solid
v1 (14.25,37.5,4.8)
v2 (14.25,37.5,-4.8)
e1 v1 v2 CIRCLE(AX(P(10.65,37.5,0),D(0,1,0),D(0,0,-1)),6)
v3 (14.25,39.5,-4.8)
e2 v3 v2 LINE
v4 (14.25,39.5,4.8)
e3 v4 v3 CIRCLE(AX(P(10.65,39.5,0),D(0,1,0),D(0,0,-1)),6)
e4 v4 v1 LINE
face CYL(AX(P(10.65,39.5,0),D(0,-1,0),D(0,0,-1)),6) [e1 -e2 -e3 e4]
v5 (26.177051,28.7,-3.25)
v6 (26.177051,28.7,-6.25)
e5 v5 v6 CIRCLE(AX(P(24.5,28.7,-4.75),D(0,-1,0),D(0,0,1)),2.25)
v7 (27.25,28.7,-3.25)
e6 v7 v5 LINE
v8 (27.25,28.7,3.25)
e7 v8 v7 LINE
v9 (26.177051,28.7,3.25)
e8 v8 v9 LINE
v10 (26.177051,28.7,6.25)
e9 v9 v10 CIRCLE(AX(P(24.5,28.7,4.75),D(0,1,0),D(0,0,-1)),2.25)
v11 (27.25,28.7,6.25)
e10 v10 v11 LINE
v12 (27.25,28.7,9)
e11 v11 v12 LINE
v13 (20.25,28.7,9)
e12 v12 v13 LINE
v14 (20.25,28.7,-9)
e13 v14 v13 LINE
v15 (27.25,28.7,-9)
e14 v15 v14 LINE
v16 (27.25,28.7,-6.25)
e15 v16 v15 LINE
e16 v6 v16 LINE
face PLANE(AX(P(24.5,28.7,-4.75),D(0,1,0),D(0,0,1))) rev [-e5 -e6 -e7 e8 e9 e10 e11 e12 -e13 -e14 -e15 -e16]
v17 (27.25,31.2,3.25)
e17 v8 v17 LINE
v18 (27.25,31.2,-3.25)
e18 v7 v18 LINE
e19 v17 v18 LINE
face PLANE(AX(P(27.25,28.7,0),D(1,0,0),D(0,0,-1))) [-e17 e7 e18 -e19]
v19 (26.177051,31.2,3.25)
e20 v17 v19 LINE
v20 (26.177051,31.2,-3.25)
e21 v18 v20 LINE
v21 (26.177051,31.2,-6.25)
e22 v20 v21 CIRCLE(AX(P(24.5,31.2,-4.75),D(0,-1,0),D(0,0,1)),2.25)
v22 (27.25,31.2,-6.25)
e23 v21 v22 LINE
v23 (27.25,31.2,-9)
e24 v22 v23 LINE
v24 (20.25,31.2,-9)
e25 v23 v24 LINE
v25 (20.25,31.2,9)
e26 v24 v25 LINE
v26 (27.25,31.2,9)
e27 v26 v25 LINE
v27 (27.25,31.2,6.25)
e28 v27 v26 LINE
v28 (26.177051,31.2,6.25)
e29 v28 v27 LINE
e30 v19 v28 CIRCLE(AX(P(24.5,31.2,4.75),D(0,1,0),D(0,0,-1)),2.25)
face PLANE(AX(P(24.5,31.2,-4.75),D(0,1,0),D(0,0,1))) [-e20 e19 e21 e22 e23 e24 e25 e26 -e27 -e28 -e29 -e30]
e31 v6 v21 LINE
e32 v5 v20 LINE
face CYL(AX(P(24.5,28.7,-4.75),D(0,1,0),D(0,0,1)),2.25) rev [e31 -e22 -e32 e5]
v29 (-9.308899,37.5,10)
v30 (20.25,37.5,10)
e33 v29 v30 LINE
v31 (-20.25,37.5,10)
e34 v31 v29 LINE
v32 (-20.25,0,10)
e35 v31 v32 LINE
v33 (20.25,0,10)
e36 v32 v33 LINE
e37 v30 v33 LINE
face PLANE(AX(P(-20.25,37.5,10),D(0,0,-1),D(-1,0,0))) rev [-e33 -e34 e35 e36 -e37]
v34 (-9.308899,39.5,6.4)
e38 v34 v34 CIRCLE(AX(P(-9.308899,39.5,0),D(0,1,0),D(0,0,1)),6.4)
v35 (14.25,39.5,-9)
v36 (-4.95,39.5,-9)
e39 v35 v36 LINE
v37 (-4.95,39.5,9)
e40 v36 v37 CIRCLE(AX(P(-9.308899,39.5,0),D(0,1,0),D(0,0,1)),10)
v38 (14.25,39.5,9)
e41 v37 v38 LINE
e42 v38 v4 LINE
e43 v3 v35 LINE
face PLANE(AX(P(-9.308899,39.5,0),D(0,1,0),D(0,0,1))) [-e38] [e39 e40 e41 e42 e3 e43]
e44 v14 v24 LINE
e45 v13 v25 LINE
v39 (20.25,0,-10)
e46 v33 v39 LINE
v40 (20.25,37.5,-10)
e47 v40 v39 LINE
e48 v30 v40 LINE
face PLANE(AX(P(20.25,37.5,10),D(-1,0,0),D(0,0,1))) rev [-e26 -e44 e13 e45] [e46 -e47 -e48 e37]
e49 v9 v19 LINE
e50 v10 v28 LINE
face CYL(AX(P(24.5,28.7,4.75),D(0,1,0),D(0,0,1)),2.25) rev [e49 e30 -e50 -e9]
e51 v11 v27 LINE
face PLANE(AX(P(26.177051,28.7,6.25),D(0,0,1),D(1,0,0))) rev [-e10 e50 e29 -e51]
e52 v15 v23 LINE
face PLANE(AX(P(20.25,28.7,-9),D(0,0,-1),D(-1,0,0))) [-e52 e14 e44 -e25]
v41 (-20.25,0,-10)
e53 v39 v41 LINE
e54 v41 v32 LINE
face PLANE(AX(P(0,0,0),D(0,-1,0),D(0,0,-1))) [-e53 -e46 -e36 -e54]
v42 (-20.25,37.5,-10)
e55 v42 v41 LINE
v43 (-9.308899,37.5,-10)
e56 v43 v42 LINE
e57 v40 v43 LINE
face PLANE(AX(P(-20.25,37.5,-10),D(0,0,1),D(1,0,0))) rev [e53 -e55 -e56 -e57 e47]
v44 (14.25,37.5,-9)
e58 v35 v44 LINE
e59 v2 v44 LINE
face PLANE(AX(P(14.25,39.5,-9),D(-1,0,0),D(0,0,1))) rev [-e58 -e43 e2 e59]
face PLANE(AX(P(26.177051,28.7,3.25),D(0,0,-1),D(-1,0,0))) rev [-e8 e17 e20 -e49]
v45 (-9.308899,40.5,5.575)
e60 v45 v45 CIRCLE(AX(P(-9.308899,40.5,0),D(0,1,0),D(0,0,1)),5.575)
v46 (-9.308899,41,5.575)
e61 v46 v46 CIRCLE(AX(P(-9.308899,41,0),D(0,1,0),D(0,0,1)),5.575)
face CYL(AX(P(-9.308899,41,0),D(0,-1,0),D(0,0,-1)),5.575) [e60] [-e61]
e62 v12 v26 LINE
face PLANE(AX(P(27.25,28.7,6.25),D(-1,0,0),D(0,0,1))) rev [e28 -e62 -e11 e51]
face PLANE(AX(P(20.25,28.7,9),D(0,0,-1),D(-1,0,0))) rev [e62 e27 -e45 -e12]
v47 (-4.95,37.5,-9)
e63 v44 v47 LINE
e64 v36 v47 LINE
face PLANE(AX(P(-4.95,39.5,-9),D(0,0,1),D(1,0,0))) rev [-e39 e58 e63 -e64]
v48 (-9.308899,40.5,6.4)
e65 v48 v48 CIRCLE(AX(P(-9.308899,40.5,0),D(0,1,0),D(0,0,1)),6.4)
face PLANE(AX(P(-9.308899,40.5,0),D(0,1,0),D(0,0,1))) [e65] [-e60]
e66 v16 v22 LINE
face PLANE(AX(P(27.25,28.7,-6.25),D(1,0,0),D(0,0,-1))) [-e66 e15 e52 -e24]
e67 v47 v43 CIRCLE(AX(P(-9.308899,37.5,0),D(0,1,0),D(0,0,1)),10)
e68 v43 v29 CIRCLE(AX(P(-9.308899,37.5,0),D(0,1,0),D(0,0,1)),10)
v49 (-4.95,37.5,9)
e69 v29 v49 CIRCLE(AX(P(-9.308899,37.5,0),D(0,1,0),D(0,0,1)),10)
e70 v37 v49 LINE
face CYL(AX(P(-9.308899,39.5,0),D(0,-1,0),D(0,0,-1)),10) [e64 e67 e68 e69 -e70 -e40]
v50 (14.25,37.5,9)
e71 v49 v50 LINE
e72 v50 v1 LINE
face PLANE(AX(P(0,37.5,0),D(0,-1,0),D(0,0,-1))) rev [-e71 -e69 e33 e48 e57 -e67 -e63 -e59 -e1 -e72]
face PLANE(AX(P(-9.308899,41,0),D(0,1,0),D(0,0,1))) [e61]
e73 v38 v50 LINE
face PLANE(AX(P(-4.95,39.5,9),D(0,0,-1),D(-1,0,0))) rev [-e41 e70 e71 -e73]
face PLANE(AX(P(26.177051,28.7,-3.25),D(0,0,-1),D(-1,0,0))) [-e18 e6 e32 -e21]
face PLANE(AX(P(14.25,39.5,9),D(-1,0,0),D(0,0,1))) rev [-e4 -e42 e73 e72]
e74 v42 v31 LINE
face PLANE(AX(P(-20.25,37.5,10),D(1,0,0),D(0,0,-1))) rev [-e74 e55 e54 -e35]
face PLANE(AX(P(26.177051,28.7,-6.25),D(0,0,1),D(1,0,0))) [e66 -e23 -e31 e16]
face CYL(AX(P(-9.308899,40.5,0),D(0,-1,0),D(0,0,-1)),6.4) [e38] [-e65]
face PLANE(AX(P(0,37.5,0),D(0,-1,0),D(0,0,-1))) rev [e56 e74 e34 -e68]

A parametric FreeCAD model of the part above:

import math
import FreeCAD as App
import Part
import Sketcher
from FreeCAD import Vector
Q = App.Units.Quantity


def add_polygon(sketch, points):
    """Adds a closed chain of lines whose ends are joined by coincident constraints."""
    first, n = sketch.GeometryCount, len(points)
    for a, b in zip(points, points[1:] + points[:1]):
        sketch.addGeometry(Part.LineSegment(App.Vector(*a, 0), App.Vector(*b, 0)), False)
    for i in range(n):
        sketch.addConstraint(Sketcher.Constraint("Coincident", first + i, 2, first + (i + 1) % n, 1))

doc = App.newDocument("Part")
body = doc.addObject("PartDesign::Body", "Body")

# Sketch on XZ plane
sketch1 = doc.addObject("Sketcher::SketchObject", "Sketch")
body.addObject(sketch1)
sketch1.AttachmentSupport = (doc.XZ_Plane, [""])
sketch1.MapMode = "FlatFace"
add_polygon(sketch1, [(-20, -10), (-20, 10), (20, 10), (20, -10)])  # lines 0-3
sketch1.addConstraint(Sketcher.Constraint("Vertical", 0))
sketch1.addConstraint(Sketcher.Constraint("Horizontal", 1))
sketch1.addConstraint(Sketcher.Constraint("Vertical", 2))
sketch1.addConstraint(Sketcher.Constraint("Horizontal", 3))
sketch1.addConstraint(Sketcher.Constraint("Symmetric", 0, 2, 2, 2, -1, 1))
sketch1.addConstraint(Sketcher.Constraint("DistanceY", 0, 1, 0, 2, Q("20 mm")))
sketch1.addConstraint(Sketcher.Constraint("DistanceX", 1, 1, 1, 2, Q("40.5 mm")))
pad1 = doc.addObject("PartDesign::Pad", "Pad")
body.addObject(pad1)
pad1.Profile = sketch1
pad1.Length = 37.5
pad1.Reversed = True

# Sketch on XZ plane
sketch2 = doc.addObject("Sketcher::SketchObject", "Sketch001")
body.addObject(sketch2)
sketch2.AttachmentSupport = (doc.XZ_Plane, [""])
sketch2.MapMode = "FlatFace"
sketch2.AttachmentOffset = App.Placement(Vector(0, 0, -37.5), App.Rotation())
sketch2.addGeometry(Part.LineSegment(Vector(-5, 9, 0), Vector(14.2, 9, 0)), False)
sketch2.addGeometry(Part.LineSegment(Vector(14.2, 9, 0), Vector(14.2, 4.8, 0)), False)
sketch2.addGeometry(Part.ArcOfCircle(Part.Circle(Vector(10.7, 0, 0), Vector(0, 0, 1), 6), math.radians(-53), math.radians(53)), False)
sketch2.addGeometry(Part.LineSegment(Vector(14.2, -4.8, 0), Vector(14.2, -9, 0)), False)
sketch2.addGeometry(Part.LineSegment(Vector(14.2, -9, 0), Vector(-5, -9, 0)), False)
sketch2.addGeometry(Part.ArcOfCircle(Part.Circle(Vector(-9.3, 0, 0), Vector(0, 0, 1), 10), math.radians(64), math.radians(296)), False)
sketch2.addConstraint(Sketcher.Constraint("Coincident", 0, 2, 1, 1))
sketch2.addConstraint(Sketcher.Constraint("Coincident", 1, 2, 2, 2))
sketch2.addConstraint(Sketcher.Constraint("Coincident", 2, 1, 3, 1))
sketch2.addConstraint(Sketcher.Constraint("Coincident", 3, 2, 4, 1))
sketch2.addConstraint(Sketcher.Constraint("Coincident", 4, 2, 5, 2))
sketch2.addConstraint(Sketcher.Constraint("Coincident", 5, 1, 0, 1))
sketch2.addConstraint(Sketcher.Constraint("Horizontal", 0))
sketch2.addConstraint(Sketcher.Constraint("Vertical", 1))
sketch2.addConstraint(Sketcher.Constraint("Vertical", 3))
sketch2.addConstraint(Sketcher.Constraint("Horizontal", 4))
sketch2.addConstraint(Sketcher.Constraint("Symmetric", 1, 2, 2, 1, -1))
sketch2.addConstraint(Sketcher.Constraint("Symmetric", 4, 2, 5, 1, -1))
sketch2.addConstraint(Sketcher.Constraint("Radius", 2, Q("6 mm")))
sketch2.addConstraint(Sketcher.Constraint("Radius", 5, Q("10 mm")))
sketch2.addConstraint(Sketcher.Constraint("DistanceX", 0, 1, 0, 2, Q("19.2 mm")))
sketch2.addConstraint(Sketcher.Constraint("DistanceY", 1, 2, 1, 1, Q("4.2 mm")))
sketch2.addConstraint(Sketcher.Constraint("DistanceY", -1, 1, 0, 2, Q("9 mm")))
sketch2.addConstraint(Sketcher.Constraint("DistanceX", -1, 1, 2, 3, Q("10.65 mm")))
pad2 = doc.addObject("PartDesign::Pad", "Pad001")
body.addObject(pad2)
pad2.Profile = sketch2
pad2.Length = 2
pad2.Reversed = True

# Sketch on XZ plane
sketch3 = doc.addObject("Sketcher::SketchObject", "Sketch002")
body.addObject(sketch3)
sketch3.AttachmentSupport = (doc.XZ_Plane, [""])
sketch3.MapMode = "FlatFace"
sketch3.AttachmentOffset = App.Placement(Vector(0, 0, -39.5), App.Rotation())
sketch3.addGeometry(Part.Circle(Vector(-9, 0, 0), Vector(0, 0, 1), 6), False)
sketch3.addConstraint(Sketcher.Constraint("PointOnObject", 0, 3, -1))
sketch3.addConstraint(Sketcher.Constraint("Diameter", 0, Q("12.8 mm")))
sketch3.addConstraint(Sketcher.Constraint("DistanceX", 0, 3, -1, 1, Q("9.308899 mm")))
pad3 = doc.addObject("PartDesign::Pad", "Pad002")
body.addObject(pad3)
pad3.Profile = sketch3
pad3.Length = 1
pad3.Reversed = True

# Sketch on XZ plane
sketch4 = doc.addObject("Sketcher::SketchObject", "Sketch003")
body.addObject(sketch4)
sketch4.AttachmentSupport = (doc.XZ_Plane, [""])
sketch4.MapMode = "FlatFace"
sketch4.AttachmentOffset = App.Placement(Vector(0, 0, -40.5), App.Rotation())
sketch4.addGeometry(Part.Circle(Vector(-9, 0, 0), Vector(0, 0, 1), 6), False)
sketch4.addConstraint(Sketcher.Constraint("PointOnObject", 0, 3, -1))
sketch4.addConstraint(Sketcher.Constraint("Diameter", 0, Q("11.15 mm")))
sketch4.addConstraint(Sketcher.Constraint("DistanceX", 0, 3, -1, 1, Q("9.308899 mm")))
pad4 = doc.addObject("PartDesign::Pad", "Pad003")
body.addObject(pad4)
pad4.Profile = sketch4
pad4.Length = 0.5
pad4.Reversed = True

# Sketch on XZ plane
sketch5 = doc.addObject("Sketcher::SketchObject", "Sketch004")
body.addObject(sketch5)
sketch5.AttachmentSupport = (doc.XZ_Plane, [""])
sketch5.MapMode = "FlatFace"
sketch5.AttachmentOffset = App.Placement(Vector(0, 0, -31.2), App.Rotation())
sketch5.addGeometry(Part.LineSegment(Vector(27.2, -9, 0), Vector(20.2, -9, 0)), False)
sketch5.addGeometry(Part.LineSegment(Vector(20.2, -9, 0), Vector(20.2, 0, 0)), False)
sketch5.addGeometry(Part.LineSegment(Vector(20.2, 0, 0), Vector(27.2, 0, 0)), False)
sketch5.addGeometry(Part.LineSegment(Vector(27.2, 0, 0), Vector(27.2, -3.2, 0)), False)
sketch5.addGeometry(Part.LineSegment(Vector(27.2, -3.2, 0), Vector(26.2, -3.2, 0)), False)
sketch5.addGeometry(Part.ArcOfCircle(Part.Circle(Vector(24.5, -4.8, 0), Vector(0, 0, 1), 2.2), math.radians(42), math.radians(318)), False)
sketch5.addGeometry(Part.LineSegment(Vector(26.2, -6.2, 0), Vector(27.2, -6.2, 0)), False)
sketch5.addGeometry(Part.LineSegment(Vector(27.2, -6.2, 0), Vector(27.2, -9, 0)), False)
sketch5.addConstraint(Sketcher.Constraint("Coincident", 0, 2, 1, 1))
sketch5.addConstraint(Sketcher.Constraint("Coincident", 1, 2, 2, 1))
sketch5.addConstraint(Sketcher.Constraint("Coincident", 2, 2, 3, 1))
sketch5.addConstraint(Sketcher.Constraint("Coincident", 3, 2, 4, 1))
sketch5.addConstraint(Sketcher.Constraint("Coincident", 4, 2, 5, 1))
sketch5.addConstraint(Sketcher.Constraint("Coincident", 5, 2, 6, 1))
sketch5.addConstraint(Sketcher.Constraint("Coincident", 6, 2, 7, 1))
sketch5.addConstraint(Sketcher.Constraint("Coincident", 7, 2, 0, 1))
sketch5.addConstraint(Sketcher.Constraint("Horizontal", 0))
sketch5.addConstraint(Sketcher.Constraint("Vertical", 1))
sketch5.addConstraint(Sketcher.Constraint("Horizontal", 2))
sketch5.addConstraint(Sketcher.Constraint("Vertical", 3))
sketch5.addConstraint(Sketcher.Constraint("Horizontal", 4))
sketch5.addConstraint(Sketcher.Constraint("Horizontal", 6))
sketch5.addConstraint(Sketcher.Constraint("Vertical", 7))
sketch5.addConstraint(Sketcher.Constraint("PointOnObject", 1, 2, -1))
sketch5.addConstraint(Sketcher.Constraint("Vertical", 4, 2, 5, 2))
sketch5.addConstraint(Sketcher.Constraint("Vertical", 3, 2, 6, 2))
sketch5.addConstraint(Sketcher.Constraint("DistanceX", 0, 2, 0, 1, Q("7 mm")))
sketch5.addConstraint(Sketcher.Constraint("DistanceY", 1, 1, 1, 2, Q("9 mm")))
sketch5.addConstraint(Sketcher.Constraint("Radius", 5, Q("2.25 mm")))
sketch5.addConstraint(Sketcher.Constraint("DistanceY", 5, 2, 4, 2, Q("3 mm")))
sketch5.addConstraint(Sketcher.Constraint("DistanceY", 3, 2, 3, 1, Q("3.25 mm")))
sketch5.addConstraint(Sketcher.Constraint("DistanceX", -1, 1, 5, 3, Q("24.5 mm")))
sketch5.addConstraint(Sketcher.Constraint("DistanceX", -1, 1, 0, 2, Q("20.25 mm")))
pad5 = doc.addObject("PartDesign::Pad", "Pad004")
body.addObject(pad5)
pad5.Profile = sketch5
pad5.Length = 2.5
doc.recompute()

mirrored = doc.addObject("PartDesign::Mirrored", "Mirrored")
body.addObject(mirrored)
mirrored.Originals = [pad5]
mirrored.MirrorPlane = (doc.YZ_Plane, [""])
body.Tip = mirrored
doc.recompute()

mirrored2 = doc.addObject("PartDesign::Mirrored", "Mirrored001")
body.addObject(mirrored2)
mirrored2.Originals = [pad5]
mirrored2.MirrorPlane = (doc.XY_Plane, [""])
body.Tip = mirrored2

# Sketch on XZ plane
sketch6 = doc.addObject("Sketcher::SketchObject", "Sketch005")
body.addObject(sketch6)
sketch6.AttachmentSupport = (doc.XZ_Plane, [""])
sketch6.MapMode = "FlatFace"
sketch6.AttachmentOffset = App.Placement(Vector(0, 0, -31.2), App.Rotation())
sketch6.addGeometry(Part.LineSegment(Vector(-27.2, 9, 0), Vector(-20.2, 9, 0)), False)
sketch6.addGeometry(Part.LineSegment(Vector(-20.2, 9, 0), Vector(-20.2, 0, 0)), False)
sketch6.addGeometry(Part.LineSegment(Vector(-20.2, 0, 0), Vector(-27.2, 0, 0)), False)
sketch6.addGeometry(Part.LineSegment(Vector(-27.2, 0, 0), Vector(-27.2, 3.2, 0)), False)
sketch6.addGeometry(Part.LineSegment(Vector(-27.2, 3.2, 0), Vector(-26.2, 3.2, 0)), False)
sketch6.addGeometry(Part.ArcOfCircle(Part.Circle(Vector(-24.5, 4.8, 0), Vector(0, 0, 1), 2.2), math.radians(-138), math.radians(138)), False)
sketch6.addGeometry(Part.LineSegment(Vector(-26.2, 6.2, 0), Vector(-27.2, 6.2, 0)), False)
sketch6.addGeometry(Part.LineSegment(Vector(-27.2, 6.2, 0), Vector(-27.2, 9, 0)), False)
sketch6.addConstraint(Sketcher.Constraint("Coincident", 0, 2, 1, 1))
sketch6.addConstraint(Sketcher.Constraint("Coincident", 1, 2, 2, 1))
sketch6.addConstraint(Sketcher.Constraint("Coincident", 2, 2, 3, 1))
sketch6.addConstraint(Sketcher.Constraint("Coincident", 3, 2, 4, 1))
sketch6.addConstraint(Sketcher.Constraint("Coincident", 4, 2, 5, 1))
sketch6.addConstraint(Sketcher.Constraint("Coincident", 5, 2, 6, 1))
sketch6.addConstraint(Sketcher.Constraint("Coincident", 6, 2, 7, 1))
sketch6.addConstraint(Sketcher.Constraint("Coincident", 7, 2, 0, 1))
sketch6.addConstraint(Sketcher.Constraint("Horizontal", 0))
sketch6.addConstraint(Sketcher.Constraint("Vertical", 1))
sketch6.addConstraint(Sketcher.Constraint("Horizontal", 2))
sketch6.addConstraint(Sketcher.Constraint("Vertical", 3))
sketch6.addConstraint(Sketcher.Constraint("Horizontal", 4))
sketch6.addConstraint(Sketcher.Constraint("Horizontal", 6))
sketch6.addConstraint(Sketcher.Constraint("Vertical", 7))
sketch6.addConstraint(Sketcher.Constraint("PointOnObject", 1, 2, -1))
sketch6.addConstraint(Sketcher.Constraint("Vertical", 4, 2, 5, 2))
sketch6.addConstraint(Sketcher.Constraint("Vertical", 3, 2, 6, 2))
sketch6.addConstraint(Sketcher.Constraint("DistanceX", 0, 1, 0, 2, Q("7 mm")))
sketch6.addConstraint(Sketcher.Constraint("DistanceY", 1, 2, 1, 1, Q("9 mm")))
sketch6.addConstraint(Sketcher.Constraint("Radius", 5, Q("2.25 mm")))
sketch6.addConstraint(Sketcher.Constraint("DistanceY", 4, 2, 5, 2, Q("3 mm")))
sketch6.addConstraint(Sketcher.Constraint("DistanceY", 3, 1, 3, 2, Q("3.25 mm")))
sketch6.addConstraint(Sketcher.Constraint("DistanceX", 5, 3, -1, 1, Q("24.5 mm")))
sketch6.addConstraint(Sketcher.Constraint("DistanceX", 0, 2, -1, 1, Q("20.25 mm")))
pad6 = doc.addObject("PartDesign::Pad", "Pad005")
body.addObject(pad6)
pad6.Profile = sketch6
pad6.Length = 2.5

# Sketch on XY plane
sketch7 = doc.addObject("Sketcher::SketchObject", "Sketch006")
body.addObject(sketch7)
sketch7.AttachmentSupport = (doc.XY_Plane, [""])
sketch7.MapMode = "FlatFace"
sketch7.AttachmentOffset = App.Placement(Vector(0, 0, 9), App.Rotation())
add_polygon(sketch7, [(-27.2, 31.2), (-27.2, 28.7), (-20.2, 28.7), (-20.2, 31.2)])  # lines 0-3
sketch7.addConstraint(Sketcher.Constraint("Vertical", 0))
sketch7.addConstraint(Sketcher.Constraint("Horizontal", 1))
sketch7.addConstraint(Sketcher.Constraint("Vertical", 2))
sketch7.addConstraint(Sketcher.Constraint("Horizontal", 3))
sketch7.addConstraint(Sketcher.Constraint("DistanceX", 1, 1, 1, 2, Q("7 mm")))
sketch7.addConstraint(Sketcher.Constraint("DistanceY", 0, 2, 0, 1, Q("2.5 mm")))
sketch7.addConstraint(Sketcher.Constraint("DistanceY", -1, 1, 0, 2, Q("28.7 mm")))
sketch7.addConstraint(Sketcher.Constraint("DistanceX", 0, 2, -1, 1, Q("27.25 mm")))
pocket1 = doc.addObject("PartDesign::Pocket", "Pocket")
body.addObject(pocket1)
pocket1.Profile = sketch7
pocket1.Type = "ThroughAll"

doc.recompute()
